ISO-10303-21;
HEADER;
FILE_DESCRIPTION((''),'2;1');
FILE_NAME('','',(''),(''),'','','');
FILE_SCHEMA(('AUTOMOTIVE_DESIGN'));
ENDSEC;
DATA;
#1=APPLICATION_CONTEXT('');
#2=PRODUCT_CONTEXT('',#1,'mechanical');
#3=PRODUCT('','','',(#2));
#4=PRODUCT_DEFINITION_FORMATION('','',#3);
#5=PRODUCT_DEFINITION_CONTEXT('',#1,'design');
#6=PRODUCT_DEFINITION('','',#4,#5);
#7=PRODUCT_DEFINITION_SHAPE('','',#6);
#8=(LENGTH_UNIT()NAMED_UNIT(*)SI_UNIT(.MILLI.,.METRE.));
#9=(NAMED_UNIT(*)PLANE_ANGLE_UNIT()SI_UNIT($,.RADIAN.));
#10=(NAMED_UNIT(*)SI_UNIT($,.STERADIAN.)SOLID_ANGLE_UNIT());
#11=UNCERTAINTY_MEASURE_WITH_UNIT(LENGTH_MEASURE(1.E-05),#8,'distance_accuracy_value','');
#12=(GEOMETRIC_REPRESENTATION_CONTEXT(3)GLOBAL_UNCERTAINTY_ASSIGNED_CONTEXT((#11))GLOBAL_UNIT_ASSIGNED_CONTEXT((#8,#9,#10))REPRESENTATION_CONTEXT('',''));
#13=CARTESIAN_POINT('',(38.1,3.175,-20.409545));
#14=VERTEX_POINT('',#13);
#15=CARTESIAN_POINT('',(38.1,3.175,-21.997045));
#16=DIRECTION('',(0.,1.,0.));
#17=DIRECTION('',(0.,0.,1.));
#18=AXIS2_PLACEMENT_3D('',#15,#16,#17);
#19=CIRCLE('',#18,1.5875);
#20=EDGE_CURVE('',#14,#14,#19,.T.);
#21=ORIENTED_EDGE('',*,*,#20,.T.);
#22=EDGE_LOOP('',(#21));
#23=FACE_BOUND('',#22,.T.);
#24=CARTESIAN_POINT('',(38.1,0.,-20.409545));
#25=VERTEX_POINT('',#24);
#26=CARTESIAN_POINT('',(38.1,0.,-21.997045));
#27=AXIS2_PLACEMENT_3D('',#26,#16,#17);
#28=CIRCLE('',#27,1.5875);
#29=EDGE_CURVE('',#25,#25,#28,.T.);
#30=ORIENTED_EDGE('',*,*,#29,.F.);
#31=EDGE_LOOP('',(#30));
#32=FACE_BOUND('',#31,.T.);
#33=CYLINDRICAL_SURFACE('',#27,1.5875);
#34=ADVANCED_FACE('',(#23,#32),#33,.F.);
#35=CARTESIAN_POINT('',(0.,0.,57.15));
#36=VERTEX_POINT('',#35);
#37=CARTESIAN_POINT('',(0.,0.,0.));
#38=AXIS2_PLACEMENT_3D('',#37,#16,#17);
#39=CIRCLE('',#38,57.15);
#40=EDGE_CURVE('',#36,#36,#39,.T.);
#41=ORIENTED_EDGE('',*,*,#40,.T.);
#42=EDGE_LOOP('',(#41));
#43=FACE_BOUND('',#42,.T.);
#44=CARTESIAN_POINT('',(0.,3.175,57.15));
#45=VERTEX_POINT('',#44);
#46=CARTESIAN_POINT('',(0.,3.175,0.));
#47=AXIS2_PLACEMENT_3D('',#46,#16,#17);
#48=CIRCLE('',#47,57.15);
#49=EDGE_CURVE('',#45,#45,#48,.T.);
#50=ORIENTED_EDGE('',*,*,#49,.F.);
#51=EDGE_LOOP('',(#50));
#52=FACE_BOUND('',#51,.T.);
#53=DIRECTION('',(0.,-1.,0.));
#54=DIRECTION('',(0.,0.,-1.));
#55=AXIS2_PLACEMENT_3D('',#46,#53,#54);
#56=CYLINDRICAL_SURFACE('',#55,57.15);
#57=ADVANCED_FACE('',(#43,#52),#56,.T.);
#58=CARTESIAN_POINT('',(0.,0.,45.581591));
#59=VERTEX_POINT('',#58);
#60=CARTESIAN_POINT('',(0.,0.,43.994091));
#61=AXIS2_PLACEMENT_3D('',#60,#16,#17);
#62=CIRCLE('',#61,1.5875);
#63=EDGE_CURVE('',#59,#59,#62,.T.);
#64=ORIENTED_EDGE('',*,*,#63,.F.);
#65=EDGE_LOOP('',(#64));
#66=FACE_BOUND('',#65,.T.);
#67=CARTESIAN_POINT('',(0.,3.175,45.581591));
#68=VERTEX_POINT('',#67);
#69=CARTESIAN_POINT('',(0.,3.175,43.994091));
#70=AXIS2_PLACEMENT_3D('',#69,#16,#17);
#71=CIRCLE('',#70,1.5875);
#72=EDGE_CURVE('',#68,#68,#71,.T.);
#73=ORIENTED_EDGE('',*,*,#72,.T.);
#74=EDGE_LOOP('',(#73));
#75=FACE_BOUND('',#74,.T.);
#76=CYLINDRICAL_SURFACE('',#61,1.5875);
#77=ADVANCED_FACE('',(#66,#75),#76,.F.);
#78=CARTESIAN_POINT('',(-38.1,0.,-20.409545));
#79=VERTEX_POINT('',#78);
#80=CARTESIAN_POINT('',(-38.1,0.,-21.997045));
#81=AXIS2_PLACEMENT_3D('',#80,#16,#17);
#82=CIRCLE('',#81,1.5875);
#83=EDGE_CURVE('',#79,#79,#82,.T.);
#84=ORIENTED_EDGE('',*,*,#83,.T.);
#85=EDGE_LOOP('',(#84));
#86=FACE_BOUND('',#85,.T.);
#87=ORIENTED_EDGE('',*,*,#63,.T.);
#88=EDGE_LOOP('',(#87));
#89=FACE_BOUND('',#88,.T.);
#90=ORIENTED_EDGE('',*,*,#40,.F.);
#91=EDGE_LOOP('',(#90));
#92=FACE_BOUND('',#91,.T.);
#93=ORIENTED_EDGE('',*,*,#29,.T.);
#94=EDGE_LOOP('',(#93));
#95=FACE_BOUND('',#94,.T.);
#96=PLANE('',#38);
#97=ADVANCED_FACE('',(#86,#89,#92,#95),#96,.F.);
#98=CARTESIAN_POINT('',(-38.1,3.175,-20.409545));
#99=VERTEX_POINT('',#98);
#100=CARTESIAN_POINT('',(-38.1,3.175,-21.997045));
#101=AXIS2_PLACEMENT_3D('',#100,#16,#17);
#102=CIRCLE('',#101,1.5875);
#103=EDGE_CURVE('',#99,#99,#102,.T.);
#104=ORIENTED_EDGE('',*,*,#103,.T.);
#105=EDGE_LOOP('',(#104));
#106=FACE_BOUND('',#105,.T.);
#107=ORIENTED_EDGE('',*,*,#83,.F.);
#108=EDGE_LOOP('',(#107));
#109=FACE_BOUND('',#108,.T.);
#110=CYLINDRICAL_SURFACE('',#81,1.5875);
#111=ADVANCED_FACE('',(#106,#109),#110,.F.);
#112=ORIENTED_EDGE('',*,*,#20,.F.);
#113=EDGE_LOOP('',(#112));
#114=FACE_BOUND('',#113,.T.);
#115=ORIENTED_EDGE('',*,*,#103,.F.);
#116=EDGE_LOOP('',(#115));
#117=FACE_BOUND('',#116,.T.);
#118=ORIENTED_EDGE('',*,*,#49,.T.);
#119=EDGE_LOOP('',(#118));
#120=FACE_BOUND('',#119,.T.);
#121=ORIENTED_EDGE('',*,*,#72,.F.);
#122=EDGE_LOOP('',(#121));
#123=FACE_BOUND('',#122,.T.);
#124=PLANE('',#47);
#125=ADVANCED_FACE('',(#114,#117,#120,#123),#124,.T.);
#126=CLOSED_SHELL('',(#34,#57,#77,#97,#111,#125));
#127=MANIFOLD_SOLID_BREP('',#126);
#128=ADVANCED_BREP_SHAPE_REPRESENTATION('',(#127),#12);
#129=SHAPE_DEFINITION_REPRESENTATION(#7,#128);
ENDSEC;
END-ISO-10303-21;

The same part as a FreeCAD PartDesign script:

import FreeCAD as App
import Part
import Sketcher
from FreeCAD import Vector
Q = App.Units.Quantity

doc = App.newDocument("Part")
body = doc.addObject("PartDesign::Body", "Body")

sketch1 = body.newObject("Sketcher::SketchObject", "Sketch")
sketch1.AttachmentSupport = (doc.getObject("XZ_Plane"), [""])
sketch1.MapMode = "FlatFace"
sketch1.addGeometry(Part.Circle(Vector(0, 0, 0), Vector(0, 0, 1), 57), False)
sketch1.addConstraint(Sketcher.Constraint("Coincident", 0, 3, -1, 1))
sketch1.addConstraint(Sketcher.Constraint("Diameter", 0, Q("4.5 in")))
pad1 = body.newObject("PartDesign::Pad", "Pad")
pad1.Profile = sketch1
pad1.Length = Q("0.125 in")
pad1.Reversed = True

sketch2 = body.newObject("Sketcher::SketchObject", "Sketch001")
sketch2.AttachmentSupport = (doc.getObject("XZ_Plane"), [""])
sketch2.MapMode = "FlatFace"
sketch2.AttachmentOffset = App.Placement(Vector(0, 0, -0.125 * 25.4), App.Rotation())
sketch2.addGeometry(Part.Circle(Vector(0, 44, 0), Vector(0, 0, 1), 1.6), False)
sketch2.addGeometry(Part.Circle(Vector(-38.1, -22, 0), Vector(0, 0, 1), 1.6), False)
sketch2.addGeometry(Part.Circle(Vector(38.1, -22, 0), Vector(0, 0, 1), 1.6), False)
sketch2.addConstraint(Sketcher.Constraint("Equal", 0, 1))
sketch2.addConstraint(Sketcher.Constraint("Equal", 1, 2))
sketch2.addConstraint(Sketcher.Constraint("Symmetric", 1, 3, 2, 3, -2))
sketch2.addConstraint(Sketcher.Constraint("PointOnObject", 0, 3, -2))
sketch2.addConstraint(Sketcher.Constraint("Diameter", 0, Q("0.125 in")))
sketch2.addConstraint(Sketcher.Constraint("DistanceX", 1, 3, 2, 3, Q("3 in")))
sketch2.addConstraint(Sketcher.Constraint("DistanceY", -1, 1, 0, 3, Q("43.994091 mm")))
sketch2.addConstraint(Sketcher.Constraint("DistanceY", 1, 3, -1, 1, Q("21.997045 mm")))
pocket1 = body.newObject("PartDesign::Pocket", "Pocket")
pocket1.Profile = sketch2
pocket1.Type = "ThroughAll"
pocket1.Reversed = True

doc.recompute()
